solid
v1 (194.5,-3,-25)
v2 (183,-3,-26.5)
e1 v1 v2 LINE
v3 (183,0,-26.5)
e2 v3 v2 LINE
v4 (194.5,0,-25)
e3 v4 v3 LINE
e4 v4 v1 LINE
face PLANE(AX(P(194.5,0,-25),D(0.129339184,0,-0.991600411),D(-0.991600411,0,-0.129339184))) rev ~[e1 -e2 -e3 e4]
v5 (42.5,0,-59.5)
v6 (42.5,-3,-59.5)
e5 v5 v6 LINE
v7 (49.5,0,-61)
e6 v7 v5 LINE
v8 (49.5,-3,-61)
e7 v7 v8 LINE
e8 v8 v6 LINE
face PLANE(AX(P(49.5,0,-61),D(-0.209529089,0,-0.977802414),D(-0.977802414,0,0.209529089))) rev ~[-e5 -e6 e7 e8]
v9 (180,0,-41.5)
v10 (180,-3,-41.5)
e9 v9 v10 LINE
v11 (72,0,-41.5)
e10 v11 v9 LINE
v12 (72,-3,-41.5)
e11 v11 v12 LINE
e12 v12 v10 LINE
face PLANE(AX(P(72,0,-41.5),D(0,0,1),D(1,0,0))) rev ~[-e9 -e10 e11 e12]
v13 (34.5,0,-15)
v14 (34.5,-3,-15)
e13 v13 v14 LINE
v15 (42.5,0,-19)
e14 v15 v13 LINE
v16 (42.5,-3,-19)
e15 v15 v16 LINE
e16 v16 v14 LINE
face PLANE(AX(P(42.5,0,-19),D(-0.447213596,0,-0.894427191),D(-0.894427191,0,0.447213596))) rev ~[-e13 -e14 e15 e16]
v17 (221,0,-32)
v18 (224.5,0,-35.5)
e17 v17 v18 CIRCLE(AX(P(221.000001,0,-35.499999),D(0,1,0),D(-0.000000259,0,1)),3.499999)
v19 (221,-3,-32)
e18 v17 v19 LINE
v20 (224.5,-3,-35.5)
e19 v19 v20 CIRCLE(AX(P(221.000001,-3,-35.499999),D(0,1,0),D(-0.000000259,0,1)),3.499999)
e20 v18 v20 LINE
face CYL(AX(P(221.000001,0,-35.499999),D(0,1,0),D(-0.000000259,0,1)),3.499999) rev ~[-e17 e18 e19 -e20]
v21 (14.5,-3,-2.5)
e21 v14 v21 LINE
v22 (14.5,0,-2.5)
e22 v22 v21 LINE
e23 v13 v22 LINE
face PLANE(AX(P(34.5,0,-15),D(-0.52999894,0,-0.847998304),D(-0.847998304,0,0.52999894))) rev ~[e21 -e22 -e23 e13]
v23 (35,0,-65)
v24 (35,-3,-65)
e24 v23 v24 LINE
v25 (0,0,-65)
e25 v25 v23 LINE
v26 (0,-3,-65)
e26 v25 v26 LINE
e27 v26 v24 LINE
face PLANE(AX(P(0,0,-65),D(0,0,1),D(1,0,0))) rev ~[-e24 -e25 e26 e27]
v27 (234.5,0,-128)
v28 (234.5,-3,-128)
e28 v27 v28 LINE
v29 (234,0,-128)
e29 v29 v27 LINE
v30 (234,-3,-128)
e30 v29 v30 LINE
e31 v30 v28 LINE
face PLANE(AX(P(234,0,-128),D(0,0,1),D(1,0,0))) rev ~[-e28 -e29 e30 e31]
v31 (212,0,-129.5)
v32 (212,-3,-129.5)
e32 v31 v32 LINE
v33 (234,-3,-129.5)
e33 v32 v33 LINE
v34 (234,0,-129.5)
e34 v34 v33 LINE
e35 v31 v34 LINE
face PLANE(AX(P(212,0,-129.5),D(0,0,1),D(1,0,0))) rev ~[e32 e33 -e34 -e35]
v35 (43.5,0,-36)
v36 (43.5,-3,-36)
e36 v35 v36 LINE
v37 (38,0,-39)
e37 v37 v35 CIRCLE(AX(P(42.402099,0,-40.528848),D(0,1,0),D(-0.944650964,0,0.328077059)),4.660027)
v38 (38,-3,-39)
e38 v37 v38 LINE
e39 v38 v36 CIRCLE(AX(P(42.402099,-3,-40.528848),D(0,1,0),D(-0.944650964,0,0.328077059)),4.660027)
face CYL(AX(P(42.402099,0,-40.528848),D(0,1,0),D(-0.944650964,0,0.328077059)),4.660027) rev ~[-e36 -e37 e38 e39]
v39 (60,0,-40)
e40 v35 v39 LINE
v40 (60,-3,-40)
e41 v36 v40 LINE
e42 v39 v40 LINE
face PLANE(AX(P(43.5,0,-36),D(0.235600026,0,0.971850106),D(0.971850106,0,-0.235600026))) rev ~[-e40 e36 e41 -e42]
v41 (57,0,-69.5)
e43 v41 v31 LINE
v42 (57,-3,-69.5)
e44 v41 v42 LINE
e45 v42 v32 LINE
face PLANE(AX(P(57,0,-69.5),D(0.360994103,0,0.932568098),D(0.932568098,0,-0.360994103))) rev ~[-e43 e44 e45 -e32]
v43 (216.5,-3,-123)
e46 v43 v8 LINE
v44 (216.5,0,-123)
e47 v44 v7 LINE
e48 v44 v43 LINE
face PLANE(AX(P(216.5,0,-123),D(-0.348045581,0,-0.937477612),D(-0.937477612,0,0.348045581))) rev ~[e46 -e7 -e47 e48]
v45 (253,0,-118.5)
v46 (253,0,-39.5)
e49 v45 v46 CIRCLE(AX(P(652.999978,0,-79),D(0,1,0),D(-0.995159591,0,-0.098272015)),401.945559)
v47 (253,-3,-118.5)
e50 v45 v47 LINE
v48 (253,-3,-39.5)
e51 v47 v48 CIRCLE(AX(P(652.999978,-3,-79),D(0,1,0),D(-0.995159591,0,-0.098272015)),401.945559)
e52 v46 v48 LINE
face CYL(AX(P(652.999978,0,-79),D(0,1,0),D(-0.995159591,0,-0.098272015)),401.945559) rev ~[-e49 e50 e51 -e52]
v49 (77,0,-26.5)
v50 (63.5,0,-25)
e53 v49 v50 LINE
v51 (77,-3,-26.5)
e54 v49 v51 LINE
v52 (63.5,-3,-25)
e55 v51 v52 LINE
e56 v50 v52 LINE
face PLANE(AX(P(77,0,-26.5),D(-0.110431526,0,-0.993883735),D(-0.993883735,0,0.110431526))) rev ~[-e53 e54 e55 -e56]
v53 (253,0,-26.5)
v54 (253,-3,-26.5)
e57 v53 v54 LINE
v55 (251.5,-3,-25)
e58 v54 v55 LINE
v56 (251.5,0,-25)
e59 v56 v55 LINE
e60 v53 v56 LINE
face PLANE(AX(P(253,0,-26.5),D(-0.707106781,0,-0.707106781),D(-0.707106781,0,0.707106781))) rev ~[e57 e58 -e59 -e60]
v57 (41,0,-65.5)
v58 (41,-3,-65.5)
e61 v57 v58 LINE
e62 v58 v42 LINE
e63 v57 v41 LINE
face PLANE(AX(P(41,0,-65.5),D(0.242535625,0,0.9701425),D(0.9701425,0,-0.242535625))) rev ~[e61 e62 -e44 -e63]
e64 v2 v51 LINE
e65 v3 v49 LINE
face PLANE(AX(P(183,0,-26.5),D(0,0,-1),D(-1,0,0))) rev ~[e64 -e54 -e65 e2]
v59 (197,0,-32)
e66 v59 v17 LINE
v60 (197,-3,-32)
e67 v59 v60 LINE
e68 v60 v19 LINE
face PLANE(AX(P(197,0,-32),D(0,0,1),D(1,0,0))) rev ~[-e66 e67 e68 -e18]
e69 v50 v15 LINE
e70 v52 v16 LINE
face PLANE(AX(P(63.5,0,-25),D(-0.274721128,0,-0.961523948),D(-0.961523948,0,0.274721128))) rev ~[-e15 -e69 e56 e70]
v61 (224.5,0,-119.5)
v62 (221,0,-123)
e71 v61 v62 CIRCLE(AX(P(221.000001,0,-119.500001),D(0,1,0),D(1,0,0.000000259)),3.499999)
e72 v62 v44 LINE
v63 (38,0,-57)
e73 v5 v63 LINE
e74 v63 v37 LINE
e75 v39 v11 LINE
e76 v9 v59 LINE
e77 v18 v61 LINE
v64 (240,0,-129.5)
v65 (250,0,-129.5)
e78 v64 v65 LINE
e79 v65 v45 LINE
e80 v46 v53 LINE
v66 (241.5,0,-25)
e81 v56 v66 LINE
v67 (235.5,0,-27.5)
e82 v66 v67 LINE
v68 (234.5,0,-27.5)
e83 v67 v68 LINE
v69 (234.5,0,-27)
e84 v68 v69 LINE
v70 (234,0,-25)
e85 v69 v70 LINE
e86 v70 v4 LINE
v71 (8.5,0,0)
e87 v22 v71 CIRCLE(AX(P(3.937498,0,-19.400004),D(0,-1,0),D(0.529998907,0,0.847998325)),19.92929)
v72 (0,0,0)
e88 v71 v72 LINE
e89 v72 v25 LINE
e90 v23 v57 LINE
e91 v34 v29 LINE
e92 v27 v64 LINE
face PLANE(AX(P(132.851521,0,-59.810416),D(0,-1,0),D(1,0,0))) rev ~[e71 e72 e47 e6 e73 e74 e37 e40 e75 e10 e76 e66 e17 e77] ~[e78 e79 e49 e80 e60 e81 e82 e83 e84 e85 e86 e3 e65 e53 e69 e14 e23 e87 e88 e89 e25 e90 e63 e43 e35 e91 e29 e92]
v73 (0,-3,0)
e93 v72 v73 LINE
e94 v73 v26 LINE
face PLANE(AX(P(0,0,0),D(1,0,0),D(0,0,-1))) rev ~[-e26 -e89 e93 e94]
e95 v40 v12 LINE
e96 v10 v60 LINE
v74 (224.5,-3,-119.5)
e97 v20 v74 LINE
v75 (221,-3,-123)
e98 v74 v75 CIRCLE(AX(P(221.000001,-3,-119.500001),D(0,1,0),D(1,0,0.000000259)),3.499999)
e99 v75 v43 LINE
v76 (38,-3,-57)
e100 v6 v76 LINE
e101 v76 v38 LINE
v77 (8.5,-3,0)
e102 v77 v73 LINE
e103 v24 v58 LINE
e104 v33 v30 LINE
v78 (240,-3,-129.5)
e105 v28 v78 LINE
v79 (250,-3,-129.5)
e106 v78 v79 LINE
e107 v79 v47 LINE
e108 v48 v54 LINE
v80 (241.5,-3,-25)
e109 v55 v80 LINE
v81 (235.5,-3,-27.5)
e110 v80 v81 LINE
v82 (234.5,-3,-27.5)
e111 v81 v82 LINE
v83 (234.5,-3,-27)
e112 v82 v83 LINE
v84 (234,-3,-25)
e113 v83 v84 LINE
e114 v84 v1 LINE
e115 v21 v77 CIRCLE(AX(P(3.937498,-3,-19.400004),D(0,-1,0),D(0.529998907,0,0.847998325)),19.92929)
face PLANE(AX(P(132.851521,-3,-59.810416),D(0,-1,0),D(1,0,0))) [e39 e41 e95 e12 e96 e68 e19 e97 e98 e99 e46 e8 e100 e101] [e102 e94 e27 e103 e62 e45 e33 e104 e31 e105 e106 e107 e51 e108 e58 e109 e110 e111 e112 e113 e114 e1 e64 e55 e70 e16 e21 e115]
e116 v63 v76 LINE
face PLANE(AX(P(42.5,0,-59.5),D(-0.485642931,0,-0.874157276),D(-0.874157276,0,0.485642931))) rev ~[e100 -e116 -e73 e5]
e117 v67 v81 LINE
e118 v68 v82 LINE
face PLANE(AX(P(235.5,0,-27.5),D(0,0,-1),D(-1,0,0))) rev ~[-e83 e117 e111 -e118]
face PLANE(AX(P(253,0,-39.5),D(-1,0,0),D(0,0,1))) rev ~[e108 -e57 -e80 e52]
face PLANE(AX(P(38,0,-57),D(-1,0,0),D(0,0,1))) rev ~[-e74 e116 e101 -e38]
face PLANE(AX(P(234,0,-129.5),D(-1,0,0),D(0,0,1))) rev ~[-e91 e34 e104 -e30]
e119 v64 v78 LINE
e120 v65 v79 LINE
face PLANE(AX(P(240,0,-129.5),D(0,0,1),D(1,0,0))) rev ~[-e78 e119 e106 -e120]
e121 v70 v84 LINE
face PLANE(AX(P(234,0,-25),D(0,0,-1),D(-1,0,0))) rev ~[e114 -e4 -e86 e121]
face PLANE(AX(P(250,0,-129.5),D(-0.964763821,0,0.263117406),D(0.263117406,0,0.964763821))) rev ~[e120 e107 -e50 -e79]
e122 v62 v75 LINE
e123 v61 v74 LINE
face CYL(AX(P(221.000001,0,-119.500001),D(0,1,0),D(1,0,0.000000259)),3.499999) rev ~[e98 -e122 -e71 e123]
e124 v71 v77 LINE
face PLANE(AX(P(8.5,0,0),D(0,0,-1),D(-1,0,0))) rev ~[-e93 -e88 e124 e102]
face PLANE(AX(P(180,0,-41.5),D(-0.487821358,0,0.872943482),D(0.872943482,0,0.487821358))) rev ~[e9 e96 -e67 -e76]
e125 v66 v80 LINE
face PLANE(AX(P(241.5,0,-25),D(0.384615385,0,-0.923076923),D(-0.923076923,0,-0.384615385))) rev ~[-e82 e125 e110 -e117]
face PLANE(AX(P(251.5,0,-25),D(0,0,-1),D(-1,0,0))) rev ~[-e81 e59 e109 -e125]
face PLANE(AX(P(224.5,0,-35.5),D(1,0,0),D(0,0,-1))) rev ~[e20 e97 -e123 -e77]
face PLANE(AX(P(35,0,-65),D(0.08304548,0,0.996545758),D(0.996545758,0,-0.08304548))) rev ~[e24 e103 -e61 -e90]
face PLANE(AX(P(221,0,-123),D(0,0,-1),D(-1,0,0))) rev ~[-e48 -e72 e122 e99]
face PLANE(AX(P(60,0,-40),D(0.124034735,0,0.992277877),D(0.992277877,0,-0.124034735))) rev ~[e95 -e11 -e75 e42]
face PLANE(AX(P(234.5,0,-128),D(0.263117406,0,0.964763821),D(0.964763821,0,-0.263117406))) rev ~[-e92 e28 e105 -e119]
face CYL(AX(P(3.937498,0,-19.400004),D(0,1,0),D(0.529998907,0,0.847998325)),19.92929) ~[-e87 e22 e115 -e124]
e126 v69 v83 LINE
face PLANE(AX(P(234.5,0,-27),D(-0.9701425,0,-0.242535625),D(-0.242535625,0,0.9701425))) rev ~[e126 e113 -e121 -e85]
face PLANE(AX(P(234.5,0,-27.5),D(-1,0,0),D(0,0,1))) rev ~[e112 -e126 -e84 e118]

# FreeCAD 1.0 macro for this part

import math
import FreeCAD as App
import Part
import Sketcher
Q = App.Units.Quantity

doc = App.newDocument("Part")
body = doc.addObject("PartDesign::Body", "Body")

sketch1 = body.newObject("Sketcher::SketchObject", "Sketch")
sketch1.AttachmentSupport = (doc.getObject("XZ_Plane"), [""])
sketch1.MapMode = "FlatFace"
sketch1.addGeometry(Part.LineSegment(App.Vector(8.5, 0, 0), App.Vector(0, 0, 0)), False)
sketch1.addGeometry(Part.LineSegment(App.Vector(0, 0, 0), App.Vector(0, -65, 0)), False)
sketch1.addGeometry(Part.LineSegment(App.Vector(0, -65, 0), App.Vector(35, -65, 0)), False)
sketch1.addGeometry(Part.LineSegment(App.Vector(35, -65, 0), App.Vector(41, -65.5, 0)), False)
sketch1.addGeometry(Part.LineSegment(App.Vector(41, -65.5, 0), App.Vector(57, -69.5, 0)), False)
sketch1.addGeometry(Part.LineSegment(App.Vector(57, -69.5, 0), App.Vector(212, -129.5, 0)), False)
sketch1.addGeometry(Part.LineSegment(App.Vector(212, -129.5, 0), App.Vector(234, -129.5, 0)), False)
sketch1.addGeometry(Part.LineSegment(App.Vector(234, -129.5, 0), App.Vector(234, -128, 0)), False)
sketch1.addGeometry(Part.LineSegment(App.Vector(234, -128, 0), App.Vector(234.5, -128, 0)), False)
sketch1.addGeometry(Part.LineSegment(App.Vector(234.5, -128, 0), App.Vector(240, -129.5, 0)), False)
sketch1.addGeometry(Part.LineSegment(App.Vector(240, -129.5, 0), App.Vector(250, -129.5, 0)), False)
sketch1.addGeometry(Part.LineSegment(App.Vector(250, -129.5, 0), App.Vector(253, -118.5, 0)), False)
sketch1.addGeometry(Part.ArcOfCircle(Part.Circle(App.Vector(652.999978, -79, 0), App.Vector(0, 0, 1), 401.945559), math.radians(174.360326), math.radians(185.639674)), False)
sketch1.addGeometry(Part.LineSegment(App.Vector(253, -39.5, 0), App.Vector(253, -26.5, 0)), False)
sketch1.addGeometry(Part.LineSegment(App.Vector(253, -26.5, 0), App.Vector(251.5, -25, 0)), False)
sketch1.addGeometry(Part.LineSegment(App.Vector(251.5, -25, 0), App.Vector(241.5, -25, 0)), False)
sketch1.addGeometry(Part.LineSegment(App.Vector(241.5, -25, 0), App.Vector(235.5, -27.5, 0)), False)
sketch1.addGeometry(Part.LineSegment(App.Vector(235.5, -27.5, 0), App.Vector(234.5, -27.5, 0)), False)
sketch1.addGeometry(Part.LineSegment(App.Vector(234.5, -27.5, 0), App.Vector(234.5, -27, 0)), False)
sketch1.addGeometry(Part.LineSegment(App.Vector(234.5, -27, 0), App.Vector(234, -25, 0)), False)
sketch1.addGeometry(Part.LineSegment(App.Vector(234, -25, 0), App.Vector(194.5, -25, 0)), False)
sketch1.addGeometry(Part.LineSegment(App.Vector(194.5, -25, 0), App.Vector(183, -26.5, 0)), False)
sketch1.addGeometry(Part.LineSegment(App.Vector(183, -26.5, 0), App.Vector(77, -26.5, 0)), False)
sketch1.addGeometry(Part.LineSegment(App.Vector(77, -26.5, 0), App.Vector(63.5, -25, 0)), False)
sketch1.addGeometry(Part.LineSegment(App.Vector(63.5, -25, 0), App.Vector(42.5, -19, 0)), False)
sketch1.addGeometry(Part.LineSegment(App.Vector(42.5, -19, 0), App.Vector(34.5, -15, 0)), False)
sketch1.addGeometry(Part.LineSegment(App.Vector(34.5, -15, 0), App.Vector(14.5, -2.5, 0)), False)
sketch1.addGeometry(Part.ArcOfCircle(Part.Circle(App.Vector(3.937498, -19.400004, 0), App.Vector(0, 0, 1), 19.92929), math.radians(57.994619), math.radians(76.765651)), False)
sketch1.addGeometry(Part.LineSegment(App.Vector(72, -41.5, 0), App.Vector(180, -41.5, 0)), False)
sketch1.addGeometry(Part.LineSegment(App.Vector(180, -41.5, 0), App.Vector(197, -32, 0)), False)
sketch1.addGeometry(Part.LineSegment(App.Vector(197, -32, 0), App.Vector(221, -32, 0)), False)
sketch1.addGeometry(Part.ArcOfCircle(Part.Circle(App.Vector(221.000001, -35.499999, 0), App.Vector(0, 0, 1), 3.499999), math.radians(-0.000015), math.radians(90.000015)), False)
sketch1.addGeometry(Part.LineSegment(App.Vector(224.5, -35.5, 0), App.Vector(224.5, -119.5, 0)), False)
sketch1.addGeometry(Part.ArcOfCircle(Part.Circle(App.Vector(221.000001, -119.500001, 0), App.Vector(0, 0, 1), 3.499999), math.radians(-90.000015), math.radians(0.000015)), False)
sketch1.addGeometry(Part.LineSegment(App.Vector(221, -123, 0), App.Vector(216.5, -123, 0)), False)
sketch1.addGeometry(Part.LineSegment(App.Vector(216.5, -123, 0), App.Vector(49.5, -61, 0)), False)
sketch1.addGeometry(Part.LineSegment(App.Vector(49.5, -61, 0), App.Vector(42.5, -59.5, 0)), False)
sketch1.addGeometry(Part.LineSegment(App.Vector(42.5, -59.5, 0), App.Vector(38, -57, 0)), False)
sketch1.addGeometry(Part.LineSegment(App.Vector(38, -57, 0), App.Vector(38, -39, 0)), False)
sketch1.addGeometry(Part.ArcOfCircle(Part.Circle(App.Vector(42.402099, -40.528848, 0), App.Vector(0, 0, 1), 4.660027), math.radians(76.373022), math.radians(160.847898)), False)
sketch1.addGeometry(Part.LineSegment(App.Vector(43.5, -36, 0), App.Vector(60, -40, 0)), False)
sketch1.addGeometry(Part.LineSegment(App.Vector(60, -40, 0), App.Vector(72, -41.5, 0)), False)
sketch1.addConstraint(Sketcher.Constraint("Coincident", 0, 2, 1, 1))
sketch1.addConstraint(Sketcher.Constraint("Coincident", 1, 2, 2, 1))
sketch1.addConstraint(Sketcher.Constraint("Coincident", 2, 2, 3, 1))
sketch1.addConstraint(Sketcher.Constraint("Coincident", 3, 2, 4, 1))
sketch1.addConstraint(Sketcher.Constraint("Coincident", 4, 2, 5, 1))
sketch1.addConstraint(Sketcher.Constraint("Coincident", 5, 2, 6, 1))
sketch1.addConstraint(Sketcher.Constraint("Coincident", 6, 2, 7, 1))
sketch1.addConstraint(Sketcher.Constraint("Coincident", 7, 2, 8, 1))
sketch1.addConstraint(Sketcher.Constraint("Coincident", 8, 2, 9, 1))
sketch1.addConstraint(Sketcher.Constraint("Coincident", 9, 2, 10, 1))
sketch1.addConstraint(Sketcher.Constraint("Coincident", 10, 2, 11, 1))
sketch1.addConstraint(Sketcher.Constraint("Coincident", 11, 2, 12, 2))
sketch1.addConstraint(Sketcher.Constraint("Coincident", 12, 1, 13, 1))
sketch1.addConstraint(Sketcher.Constraint("Coincident", 13, 2, 14, 1))
sketch1.addConstraint(Sketcher.Constraint("Coincident", 14, 2, 15, 1))
sketch1.addConstraint(Sketcher.Constraint("Coincident", 15, 2, 16, 1))
sketch1.addConstraint(Sketcher.Constraint("Coincident", 16, 2, 17, 1))
sketch1.addConstraint(Sketcher.Constraint("Coincident", 17, 2, 18, 1))
sketch1.addConstraint(Sketcher.Constraint("Coincident", 18, 2, 19, 1))
sketch1.addConstraint(Sketcher.Constraint("Coincident", 19, 2, 20, 1))
sketch1.addConstraint(Sketcher.Constraint("Coincident", 20, 2, 21, 1))
sketch1.addConstraint(Sketcher.Constraint("Coincident", 21, 2, 22, 1))
sketch1.addConstraint(Sketcher.Constraint("Coincident", 22, 2, 23, 1))
sketch1.addConstraint(Sketcher.Constraint("Coincident", 23, 2, 24, 1))
sketch1.addConstraint(Sketcher.Constraint("Coincident", 24, 2, 25, 1))
sketch1.addConstraint(Sketcher.Constraint("Coincident", 25, 2, 26, 1))
sketch1.addConstraint(Sketcher.Constraint("Tangent", 26, 2, 27, 1))
sketch1.addConstraint(Sketcher.Constraint("Coincident", 27, 2, 0, 1))
sketch1.addConstraint(Sketcher.Constraint("Coincident", 28, 2, 29, 1))
sketch1.addConstraint(Sketcher.Constraint("Coincident", 29, 2, 30, 1))
sketch1.addConstraint(Sketcher.Constraint("Tangent", 30, 2, 31, 2))
sketch1.addConstraint(Sketcher.Constraint("Tangent", 31, 1, 32, 1))
sketch1.addConstraint(Sketcher.Constraint("Tangent", 32, 2, 33, 2))
sketch1.addConstraint(Sketcher.Constraint("Tangent", 33, 1, 34, 1))
sketch1.addConstraint(Sketcher.Constraint("Coincident", 34, 2, 35, 1))
sketch1.addConstraint(Sketcher.Constraint("Coincident", 35, 2, 36, 1))
sketch1.addConstraint(Sketcher.Constraint("Coincident", 36, 2, 37, 1))
sketch1.addConstraint(Sketcher.Constraint("Coincident", 37, 2, 38, 1))
sketch1.addConstraint(Sketcher.Constraint("Coincident", 38, 2, 39, 2))
sketch1.addConstraint(Sketcher.Constraint("Tangent", 39, 1, 40, 1))
sketch1.addConstraint(Sketcher.Constraint("Coincident", 40, 2, 41, 1))
sketch1.addConstraint(Sketcher.Constraint("Coincident", 41, 2, 28, 1))
sketch1.addConstraint(Sketcher.Constraint("Horizontal", 0))
sketch1.addConstraint(Sketcher.Constraint("Vertical", 1))
sketch1.addConstraint(Sketcher.Constraint("Horizontal", 2))
sketch1.addConstraint(Sketcher.Constraint("Horizontal", 6))
sketch1.addConstraint(Sketcher.Constraint("Vertical", 7))
sketch1.addConstraint(Sketcher.Constraint("Horizontal", 8))
sketch1.addConstraint(Sketcher.Constraint("Horizontal", 10))
sketch1.addConstraint(Sketcher.Constraint("Vertical", 13))
sketch1.addConstraint(Sketcher.Constraint("Horizontal", 15))
sketch1.addConstraint(Sketcher.Constraint("Horizontal", 17))
sketch1.addConstraint(Sketcher.Constraint("Vertical", 18))
sketch1.addConstraint(Sketcher.Constraint("Horizontal", 20))
sketch1.addConstraint(Sketcher.Constraint("Horizontal", 22))
sketch1.addConstraint(Sketcher.Constraint("Horizontal", 28))
sketch1.addConstraint(Sketcher.Constraint("Horizontal", 30))
sketch1.addConstraint(Sketcher.Constraint("Vertical", 32))
sketch1.addConstraint(Sketcher.Constraint("Horizontal", 34))
sketch1.addConstraint(Sketcher.Constraint("Vertical", 38))
sketch1.addConstraint(Sketcher.Constraint("Coincident", 0, 2, -1, 1))
sketch1.addConstraint(Sketcher.Constraint("Equal", 31, 33))
sketch1.addConstraint(Sketcher.Constraint("Perpendicular", 9, 11))
sketch1.addConstraint(Sketcher.Constraint("Horizontal", 6, 2, 9, 2))
sketch1.addConstraint(Sketcher.Constraint("Horizontal", 15, 2, 19, 2))
sketch1.addConstraint(Sketcher.Constraint("Horizontal", 13, 2, 21, 2))
sketch1.addConstraint(Sketcher.Constraint("Horizontal", 20, 2, 23, 2))
sketch1.addConstraint(Sketcher.Constraint("Vertical", 11, 2, 12, 1))
sketch1.addConstraint(Sketcher.Constraint("Vertical", 8, 2, 17, 2))
sketch1.addConstraint(Sketcher.Constraint("Vertical", 7, 2, 19, 2))
sketch1.addConstraint(Sketcher.Constraint("Vertical", 24, 2, 36, 2))
sketch1.addConstraint(Sketcher.Constraint("Equal", 10, 15))
sketch1.addConstraint(Sketcher.Constraint("Equal", 8, 18))
sketch1.addConstraint(Sketcher.Constraint("Radius", 31, 3.499999))
sketch1.addConstraint(Sketcher.Constraint("DistanceX", 2, 1, 2, 2, 35.0))
sketch1.addConstraint(Sketcher.Constraint("DistanceX", 6, 1, 6, 2, 22.0))
sketch1.addConstraint(Sketcher.Constraint("DistanceX", 10, 1, 10, 2, 10.0))
sketch1.addConstraint(Sketcher.Constraint("DistanceX", 17, 2, 17, 1, 1.0))
sketch1.addConstraint(Sketcher.Constraint("DistanceX", 22, 2, 22, 1, 106.0))
sketch1.addConstraint(Sketcher.Constraint("DistanceX", 28, 1, 28, 2, 108.0))
sketch1.addConstraint(Sketcher.Constraint("DistanceX", 30, 1, 30, 2, 24.0))
sketch1.addConstraint(Sketcher.Constraint("DistanceY", 1, 2, 1, 1, 65.0))
sketch1.addConstraint(Sketcher.Constraint("DistanceY", 13, 1, 13, 2, 13.0))
sketch1.addConstraint(Sketcher.Constraint("DistanceY", 32, 2, 32, 1, 84.0))
sketch1.addConstraint(Sketcher.Constraint("DistanceY", 38, 1, 38, 2, 18.0))
sketch1.addConstraint(Sketcher.Constraint("Angle", 14, Q("135 deg")))
sketch1.addConstraint(Sketcher.Constraint("DistanceX", 0, 2, 0, 1, 8.5))
sketch1.addConstraint(Sketcher.Constraint("DistanceX", 8, 1, 8, 2, 0.5))
sketch1.addConstraint(Sketcher.Constraint("DistanceX", 20, 2, 20, 1, 39.5))
sketch1.addConstraint(Sketcher.Constraint("DistanceX", 34, 2, 34, 1, 4.5))
sketch1.addConstraint(Sketcher.Constraint("DistanceY", 7, 1, 7, 2, 1.5))
sketch1.addConstraint(Sketcher.Constraint("DistanceY", 12, 3, -1, 1, 79.0))
sketch1.addConstraint(Sketcher.Constraint("DistanceX", -1, 1, 31, 3, 221.000001))
sketch1.addConstraint(Sketcher.Constraint("DistanceX", -1, 1, 3, 2, 41.0))
sketch1.addConstraint(Sketcher.Constraint("DistanceX", -1, 1, 4, 2, 57.0))
sketch1.addConstraint(Sketcher.Constraint("DistanceX", -1, 1, 5, 2, 212.0))
sketch1.addConstraint(Sketcher.Constraint("DistanceY", 7, 2, -1, 1, 128.0))
sketch1.addConstraint(Sketcher.Constraint("DistanceX", -1, 1, 9, 2, 240.0))
sketch1.addConstraint(Sketcher.Constraint("DistanceX", -1, 1, 11, 2, 253.0))
sketch1.addConstraint(Sketcher.Constraint("DistanceY", 14, 2, -1, 1, 25.0))
sketch1.addConstraint(Sketcher.Constraint("DistanceY", 18, 2, -1, 1, 27.0))
sketch1.addConstraint(Sketcher.Constraint("DistanceX", -1, 1, 21, 2, 183.0))
sketch1.addConstraint(Sketcher.Constraint("DistanceY", 24, 2, -1, 1, 19.0))
sketch1.addConstraint(Sketcher.Constraint("DistanceY", 25, 2, -1, 1, 15.0))
sketch1.addConstraint(Sketcher.Constraint("DistanceX", -1, 1, 28, 2, 180.0))
sketch1.addConstraint(Sketcher.Constraint("DistanceY", 29, 2, -1, 1, 32.0))
sketch1.addConstraint(Sketcher.Constraint("DistanceY", 35, 2, -1, 1, 61.0))
sketch1.addConstraint(Sketcher.Constraint("DistanceX", -1, 1, 37, 2, 38.0))
sketch1.addConstraint(Sketcher.Constraint("DistanceY", 37, 2, -1, 1, 57.0))
sketch1.addConstraint(Sketcher.Constraint("DistanceY", 39, 1, -1, 1, 36.0))
sketch1.addConstraint(Sketcher.Constraint("DistanceX", -1, 1, 40, 2, 60.0))
sketch1.addConstraint(Sketcher.Constraint("DistanceY", 40, 2, -1, 1, 40.0))
sketch1.addConstraint(Sketcher.Constraint("DistanceY", 4, 2, 3, 2, 4.0))
sketch1.addConstraint(Sketcher.Constraint("DistanceY", 5, 2, 4, 2, 60.0))
sketch1.addConstraint(Sketcher.Constraint("DistanceX", 24, 2, 23, 2, 21.0))
sketch1.addConstraint(Sketcher.Constraint("DistanceX", 25, 2, 24, 2, 8.0))
sketch1.addConstraint(Sketcher.Constraint("DistanceX", 26, 2, 25, 2, 20.0))
sketch1.addConstraint(Sketcher.Constraint("DistanceX", 27, 2, 26, 2, 6.0))
sketch1.addConstraint(Sketcher.Constraint("DistanceY", 28, 2, 21, 2, 15.0))
sketch1.addConstraint(Sketcher.Constraint("DistanceX", 35, 2, 23, 2, 14.0))
sketch1.addConstraint(Sketcher.Constraint("DistanceY", 3, 2, 36, 2, 6.0))
sketch1.addConstraint(Sketcher.Constraint("DistanceX", 24, 2, 39, 1, 1.0))
sketch1.addConstraint(Sketcher.Constraint("DistanceY", 26, 2, -1, 1, 2.5))
sketch1.addConstraint(Sketcher.Constraint("Radius", 12, 401.945559))
pad1 = body.newObject("PartDesign::Pad", "Pad")
pad1.Profile = sketch1
pad1.Length = 3

doc.recompute()
